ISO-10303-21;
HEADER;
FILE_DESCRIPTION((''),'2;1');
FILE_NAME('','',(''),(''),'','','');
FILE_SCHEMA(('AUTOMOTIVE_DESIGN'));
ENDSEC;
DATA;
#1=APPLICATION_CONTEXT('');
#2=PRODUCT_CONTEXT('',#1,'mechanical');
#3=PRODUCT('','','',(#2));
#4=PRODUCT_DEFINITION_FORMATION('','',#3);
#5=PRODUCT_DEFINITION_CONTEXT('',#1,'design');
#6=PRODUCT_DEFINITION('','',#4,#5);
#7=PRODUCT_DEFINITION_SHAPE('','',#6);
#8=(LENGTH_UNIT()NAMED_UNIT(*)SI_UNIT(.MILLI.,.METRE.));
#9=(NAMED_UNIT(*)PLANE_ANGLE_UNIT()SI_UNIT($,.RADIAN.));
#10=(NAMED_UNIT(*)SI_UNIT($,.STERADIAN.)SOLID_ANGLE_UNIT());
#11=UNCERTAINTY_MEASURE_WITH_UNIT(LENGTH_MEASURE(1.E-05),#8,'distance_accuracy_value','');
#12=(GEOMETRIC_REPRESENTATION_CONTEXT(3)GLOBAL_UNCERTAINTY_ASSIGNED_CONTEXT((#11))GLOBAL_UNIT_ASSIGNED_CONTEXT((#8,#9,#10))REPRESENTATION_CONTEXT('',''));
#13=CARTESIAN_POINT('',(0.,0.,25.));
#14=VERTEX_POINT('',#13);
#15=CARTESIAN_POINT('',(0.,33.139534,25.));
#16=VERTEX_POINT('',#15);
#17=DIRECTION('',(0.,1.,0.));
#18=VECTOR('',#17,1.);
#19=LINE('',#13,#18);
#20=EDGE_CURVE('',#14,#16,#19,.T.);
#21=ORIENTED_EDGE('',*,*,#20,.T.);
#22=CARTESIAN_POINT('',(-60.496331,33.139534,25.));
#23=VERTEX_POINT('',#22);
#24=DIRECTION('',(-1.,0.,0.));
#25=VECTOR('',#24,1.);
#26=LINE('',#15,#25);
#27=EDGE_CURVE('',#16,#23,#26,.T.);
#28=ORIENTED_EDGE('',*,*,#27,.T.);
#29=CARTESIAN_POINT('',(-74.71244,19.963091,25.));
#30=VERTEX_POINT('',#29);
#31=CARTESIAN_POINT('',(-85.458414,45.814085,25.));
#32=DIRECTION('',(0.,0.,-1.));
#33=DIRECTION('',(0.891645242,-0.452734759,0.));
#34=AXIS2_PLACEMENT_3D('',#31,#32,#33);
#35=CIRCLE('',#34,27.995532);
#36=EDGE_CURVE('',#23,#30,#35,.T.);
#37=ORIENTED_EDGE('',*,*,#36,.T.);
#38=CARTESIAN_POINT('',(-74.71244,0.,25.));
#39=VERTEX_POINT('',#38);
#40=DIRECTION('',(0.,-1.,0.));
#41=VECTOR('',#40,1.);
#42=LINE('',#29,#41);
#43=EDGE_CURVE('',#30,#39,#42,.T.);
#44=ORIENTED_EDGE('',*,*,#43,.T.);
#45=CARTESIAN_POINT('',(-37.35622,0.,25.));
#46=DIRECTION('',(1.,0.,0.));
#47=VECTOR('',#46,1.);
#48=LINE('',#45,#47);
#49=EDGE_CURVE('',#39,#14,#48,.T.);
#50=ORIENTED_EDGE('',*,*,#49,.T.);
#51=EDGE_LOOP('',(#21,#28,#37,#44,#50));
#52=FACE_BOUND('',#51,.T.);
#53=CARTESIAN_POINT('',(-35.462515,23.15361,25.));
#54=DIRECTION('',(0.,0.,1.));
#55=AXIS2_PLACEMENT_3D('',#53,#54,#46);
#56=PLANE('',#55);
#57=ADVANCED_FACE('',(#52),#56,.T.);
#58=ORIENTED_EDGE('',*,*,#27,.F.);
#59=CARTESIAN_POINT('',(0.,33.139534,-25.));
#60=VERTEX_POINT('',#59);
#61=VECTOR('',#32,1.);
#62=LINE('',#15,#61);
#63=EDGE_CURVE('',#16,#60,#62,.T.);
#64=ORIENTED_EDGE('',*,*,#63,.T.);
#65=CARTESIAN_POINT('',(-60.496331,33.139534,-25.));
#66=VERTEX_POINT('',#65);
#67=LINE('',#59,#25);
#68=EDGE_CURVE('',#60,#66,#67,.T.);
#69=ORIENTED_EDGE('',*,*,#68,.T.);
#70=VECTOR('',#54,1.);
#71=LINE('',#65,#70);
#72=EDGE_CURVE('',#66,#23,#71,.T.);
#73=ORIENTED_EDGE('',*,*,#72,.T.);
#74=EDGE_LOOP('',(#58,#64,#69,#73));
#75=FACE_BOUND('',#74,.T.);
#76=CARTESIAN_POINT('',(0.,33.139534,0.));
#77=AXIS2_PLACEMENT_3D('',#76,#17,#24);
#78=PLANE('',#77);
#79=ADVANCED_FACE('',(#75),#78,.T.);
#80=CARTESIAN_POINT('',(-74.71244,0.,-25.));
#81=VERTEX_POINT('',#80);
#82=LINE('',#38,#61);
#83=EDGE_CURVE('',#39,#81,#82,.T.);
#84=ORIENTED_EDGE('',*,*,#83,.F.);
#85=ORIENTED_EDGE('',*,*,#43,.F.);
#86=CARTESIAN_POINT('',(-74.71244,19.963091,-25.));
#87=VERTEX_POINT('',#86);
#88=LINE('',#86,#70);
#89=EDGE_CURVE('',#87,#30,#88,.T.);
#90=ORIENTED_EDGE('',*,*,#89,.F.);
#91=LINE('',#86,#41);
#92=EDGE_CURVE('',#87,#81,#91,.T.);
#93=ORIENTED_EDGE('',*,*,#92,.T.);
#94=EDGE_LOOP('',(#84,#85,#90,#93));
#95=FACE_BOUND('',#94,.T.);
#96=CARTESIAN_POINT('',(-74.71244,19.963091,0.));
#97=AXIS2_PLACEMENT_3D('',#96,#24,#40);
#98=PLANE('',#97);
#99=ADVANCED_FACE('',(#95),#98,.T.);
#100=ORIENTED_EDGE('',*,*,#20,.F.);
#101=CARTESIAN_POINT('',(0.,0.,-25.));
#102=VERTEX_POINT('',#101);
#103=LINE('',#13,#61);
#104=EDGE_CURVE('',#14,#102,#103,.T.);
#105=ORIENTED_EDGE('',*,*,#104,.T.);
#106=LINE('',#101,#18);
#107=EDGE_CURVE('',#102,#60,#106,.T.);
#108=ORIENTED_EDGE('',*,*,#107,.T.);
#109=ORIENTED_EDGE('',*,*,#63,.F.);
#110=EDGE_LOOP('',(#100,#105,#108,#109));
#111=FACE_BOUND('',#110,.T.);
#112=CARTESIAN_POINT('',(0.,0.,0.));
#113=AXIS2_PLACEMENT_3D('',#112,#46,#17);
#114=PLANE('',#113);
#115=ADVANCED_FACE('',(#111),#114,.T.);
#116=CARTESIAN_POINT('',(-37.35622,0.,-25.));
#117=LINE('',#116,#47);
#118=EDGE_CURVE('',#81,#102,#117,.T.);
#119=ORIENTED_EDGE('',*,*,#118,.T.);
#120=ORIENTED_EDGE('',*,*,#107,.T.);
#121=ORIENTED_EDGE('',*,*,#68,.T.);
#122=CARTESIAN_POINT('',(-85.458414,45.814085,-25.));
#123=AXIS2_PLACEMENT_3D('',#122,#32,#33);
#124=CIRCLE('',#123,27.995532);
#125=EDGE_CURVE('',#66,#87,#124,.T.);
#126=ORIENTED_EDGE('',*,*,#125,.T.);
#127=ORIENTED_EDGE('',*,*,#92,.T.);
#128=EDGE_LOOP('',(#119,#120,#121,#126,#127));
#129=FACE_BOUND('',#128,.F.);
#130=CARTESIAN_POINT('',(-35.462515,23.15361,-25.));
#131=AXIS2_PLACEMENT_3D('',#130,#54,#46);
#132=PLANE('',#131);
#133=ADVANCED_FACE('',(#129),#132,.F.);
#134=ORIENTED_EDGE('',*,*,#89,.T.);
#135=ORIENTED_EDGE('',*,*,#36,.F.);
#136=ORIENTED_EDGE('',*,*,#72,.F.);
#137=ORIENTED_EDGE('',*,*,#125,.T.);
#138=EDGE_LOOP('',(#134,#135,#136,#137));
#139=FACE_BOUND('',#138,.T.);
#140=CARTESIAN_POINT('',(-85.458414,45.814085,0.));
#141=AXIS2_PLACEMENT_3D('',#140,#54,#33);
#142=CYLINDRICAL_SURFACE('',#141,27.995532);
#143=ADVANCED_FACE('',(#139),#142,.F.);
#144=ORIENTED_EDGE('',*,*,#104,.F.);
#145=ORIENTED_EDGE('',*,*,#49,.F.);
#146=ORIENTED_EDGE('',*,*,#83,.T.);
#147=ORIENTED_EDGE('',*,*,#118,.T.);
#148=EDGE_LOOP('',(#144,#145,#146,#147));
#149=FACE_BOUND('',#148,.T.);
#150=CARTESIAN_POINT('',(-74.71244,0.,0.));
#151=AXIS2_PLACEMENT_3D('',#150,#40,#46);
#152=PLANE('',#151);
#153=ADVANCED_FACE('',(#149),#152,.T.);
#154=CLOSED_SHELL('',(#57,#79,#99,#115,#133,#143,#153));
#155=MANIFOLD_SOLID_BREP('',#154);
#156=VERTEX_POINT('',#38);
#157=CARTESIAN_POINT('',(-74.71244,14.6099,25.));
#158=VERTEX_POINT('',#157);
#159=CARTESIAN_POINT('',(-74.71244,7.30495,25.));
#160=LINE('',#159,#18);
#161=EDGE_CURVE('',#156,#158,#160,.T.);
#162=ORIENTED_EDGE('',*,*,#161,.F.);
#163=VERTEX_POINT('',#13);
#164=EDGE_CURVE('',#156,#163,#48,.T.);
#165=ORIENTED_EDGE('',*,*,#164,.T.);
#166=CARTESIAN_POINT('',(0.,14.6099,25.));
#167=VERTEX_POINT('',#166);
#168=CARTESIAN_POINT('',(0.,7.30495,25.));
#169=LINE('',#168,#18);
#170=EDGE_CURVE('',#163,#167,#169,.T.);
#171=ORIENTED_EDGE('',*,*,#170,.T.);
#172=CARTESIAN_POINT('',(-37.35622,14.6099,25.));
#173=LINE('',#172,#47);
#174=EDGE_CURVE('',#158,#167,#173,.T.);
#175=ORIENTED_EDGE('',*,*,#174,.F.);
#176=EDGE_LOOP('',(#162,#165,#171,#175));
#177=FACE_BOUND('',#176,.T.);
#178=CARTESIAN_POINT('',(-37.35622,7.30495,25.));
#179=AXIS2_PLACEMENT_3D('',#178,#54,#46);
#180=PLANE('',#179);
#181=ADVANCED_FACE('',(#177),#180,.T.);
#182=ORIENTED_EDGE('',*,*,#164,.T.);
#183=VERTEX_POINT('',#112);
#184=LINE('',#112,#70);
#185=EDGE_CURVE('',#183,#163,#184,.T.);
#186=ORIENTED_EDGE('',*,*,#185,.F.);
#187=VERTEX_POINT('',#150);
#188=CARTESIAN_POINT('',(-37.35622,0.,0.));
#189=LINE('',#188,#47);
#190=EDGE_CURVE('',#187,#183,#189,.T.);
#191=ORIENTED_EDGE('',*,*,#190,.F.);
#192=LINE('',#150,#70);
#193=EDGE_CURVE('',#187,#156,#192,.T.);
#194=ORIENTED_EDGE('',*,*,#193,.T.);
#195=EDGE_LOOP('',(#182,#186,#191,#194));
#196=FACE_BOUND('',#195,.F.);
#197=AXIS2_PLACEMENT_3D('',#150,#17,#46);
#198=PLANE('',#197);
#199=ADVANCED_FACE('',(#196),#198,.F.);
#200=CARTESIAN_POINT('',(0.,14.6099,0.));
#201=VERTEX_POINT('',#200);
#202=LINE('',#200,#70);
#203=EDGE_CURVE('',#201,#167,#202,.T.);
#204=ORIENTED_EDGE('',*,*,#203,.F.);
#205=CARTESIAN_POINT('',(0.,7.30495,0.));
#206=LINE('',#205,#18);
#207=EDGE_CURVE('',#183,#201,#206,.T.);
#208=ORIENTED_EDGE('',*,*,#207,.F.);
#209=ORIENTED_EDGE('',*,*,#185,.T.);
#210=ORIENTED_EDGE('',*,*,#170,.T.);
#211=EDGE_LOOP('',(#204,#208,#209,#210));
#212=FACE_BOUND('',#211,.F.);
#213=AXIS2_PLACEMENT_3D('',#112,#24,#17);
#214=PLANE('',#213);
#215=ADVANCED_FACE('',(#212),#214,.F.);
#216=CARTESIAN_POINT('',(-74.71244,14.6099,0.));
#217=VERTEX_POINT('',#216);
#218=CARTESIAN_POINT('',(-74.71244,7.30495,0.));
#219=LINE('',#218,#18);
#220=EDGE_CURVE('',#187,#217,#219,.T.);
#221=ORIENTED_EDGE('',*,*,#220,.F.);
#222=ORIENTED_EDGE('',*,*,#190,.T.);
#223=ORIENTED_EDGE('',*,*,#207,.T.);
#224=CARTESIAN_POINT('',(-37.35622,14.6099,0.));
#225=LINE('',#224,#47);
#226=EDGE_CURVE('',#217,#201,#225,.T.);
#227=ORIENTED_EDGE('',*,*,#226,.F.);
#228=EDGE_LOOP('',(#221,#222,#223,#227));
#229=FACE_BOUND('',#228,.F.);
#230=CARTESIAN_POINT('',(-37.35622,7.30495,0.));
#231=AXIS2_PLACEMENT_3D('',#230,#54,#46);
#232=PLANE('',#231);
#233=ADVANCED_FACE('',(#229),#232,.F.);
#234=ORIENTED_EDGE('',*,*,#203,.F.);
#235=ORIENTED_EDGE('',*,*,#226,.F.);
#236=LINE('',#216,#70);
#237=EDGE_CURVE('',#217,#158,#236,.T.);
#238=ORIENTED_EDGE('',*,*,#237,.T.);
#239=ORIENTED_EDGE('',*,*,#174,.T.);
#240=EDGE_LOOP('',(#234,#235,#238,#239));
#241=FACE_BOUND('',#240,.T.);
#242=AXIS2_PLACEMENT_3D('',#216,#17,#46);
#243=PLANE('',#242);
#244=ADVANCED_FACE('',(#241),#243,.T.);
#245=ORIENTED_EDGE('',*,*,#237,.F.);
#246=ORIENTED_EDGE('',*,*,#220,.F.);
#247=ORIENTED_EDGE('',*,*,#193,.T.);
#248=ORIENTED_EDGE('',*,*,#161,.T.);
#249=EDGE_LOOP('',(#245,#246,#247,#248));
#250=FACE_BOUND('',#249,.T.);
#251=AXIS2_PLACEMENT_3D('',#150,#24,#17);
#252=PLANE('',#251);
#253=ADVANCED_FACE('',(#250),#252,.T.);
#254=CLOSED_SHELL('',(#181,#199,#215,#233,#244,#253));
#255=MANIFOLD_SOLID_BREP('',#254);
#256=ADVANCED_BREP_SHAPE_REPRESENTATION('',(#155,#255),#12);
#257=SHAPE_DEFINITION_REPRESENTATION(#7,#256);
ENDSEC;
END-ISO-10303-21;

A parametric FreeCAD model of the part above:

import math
import FreeCAD as App
import Part
import Sketcher

V = App.Vector

doc = App.newDocument("Part")
body = doc.addObject("PartDesign::Body", "Body")

sketch1 = body.newObject("Sketcher::SketchObject", "Sketch")
sketch1.AttachmentSupport = (doc.getObject("XY_Plane"), [""])
sketch1.MapMode = "FlatFace"
sketch1.addGeometry([
    Part.LineSegment(V(0, 33.139534, 0), V(-60.496331, 33.139534, 0)),
    Part.ArcOfCircle(Part.Circle(V(-85.458414, 45.814085, 0), V(0, 0, 1), 27.995532), math.radians(-67.42788), math.radians(-26.919279)),
    Part.LineSegment(V(-74.71244, 19.963091, 0), V(-74.71244, 0, 0)),
    Part.LineSegment(V(-74.71244, 0, 0), V(0, 0, 0)),
    Part.LineSegment(V(0, 0, 0), V(0, 33.139534, 0)),
], False)
sketch1.addConstraint([
    Sketcher.Constraint("Coincident", 0, 2, 1, 2),
    Sketcher.Constraint("Coincident", 1, 1, 2, 1),
    Sketcher.Constraint("Coincident", 2, 2, 3, 1),
    Sketcher.Constraint("Coincident", 3, 2, 4, 1),
    Sketcher.Constraint("Coincident", 4, 2, 0, 1),
    Sketcher.Constraint("Horizontal", 0),
    Sketcher.Constraint("Vertical", 2),
    Sketcher.Constraint("Horizontal", 3),
    Sketcher.Constraint("Vertical", 4),
    Sketcher.Constraint("Coincident", 3, 2, -1, 1),
    Sketcher.Constraint("Radius", 1, 27.995532),
    Sketcher.Constraint("DistanceX", 0, 2, 0, 1, 60.496331),
    Sketcher.Constraint("DistanceX", 3, 1, 3, 2, 74.71244),
    Sketcher.Constraint("DistanceY", 2, 2, 2, 1, 19.963091),
    Sketcher.Constraint("DistanceY", 4, 1, 4, 2, 33.139534),
])
pad1 = body.newObject("PartDesign::Pad", "Pad")
pad1.Profile = sketch1
pad1.Type = "TwoLengths"
pad1.Length = 25
pad1.Length2 = 25
body2 = doc.addObject("PartDesign::Body", "Body001")

sketch2 = body2.newObject("Sketcher::SketchObject", "Sketch001")
sketch2.AttachmentSupport = (doc.getObject("XY_Plane001"), [""])
sketch2.MapMode = "FlatFace"
sketch2.addGeometry([
    Part.LineSegment(V(-74.71244, 14.6099, 0), V(-74.71244, 0, 0)),
    Part.LineSegment(V(-74.71244, 0, 0), V(0, 0, 0)),
    Part.LineSegment(V(0, 0, 0), V(0, 14.6099, 0)),
    Part.LineSegment(V(0, 14.6099, 0), V(-74.71244, 14.6099, 0)),
], False)
sketch2.addConstraint([
    Sketcher.Constraint("Coincident", 0, 2, 1, 1),
    Sketcher.Constraint("Coincident", 1, 2, 2, 1),
    Sketcher.Constraint("Coincident", 2, 2, 3, 1),
    Sketcher.Constraint("Coincident", 3, 2, 0, 1),
    Sketcher.Constraint("Vertical", 0),
    Sketcher.Constraint("Horizontal", 1),
    Sketcher.Constraint("Vertical", 2),
    Sketcher.Constraint("Horizontal", 3),
    Sketcher.Constraint("Coincident", 1, 2, -1, 1),
    Sketcher.Constraint("DistanceY", 0, 2, 0, 1, 14.6099),
    Sketcher.Constraint("DistanceX", 1, 1, 1, 2, 74.71244),
])
pad2 = body2.newObject("PartDesign::Pad", "Pad001")
pad2.Profile = sketch2
pad2.Length = 25

doc.recompute()
